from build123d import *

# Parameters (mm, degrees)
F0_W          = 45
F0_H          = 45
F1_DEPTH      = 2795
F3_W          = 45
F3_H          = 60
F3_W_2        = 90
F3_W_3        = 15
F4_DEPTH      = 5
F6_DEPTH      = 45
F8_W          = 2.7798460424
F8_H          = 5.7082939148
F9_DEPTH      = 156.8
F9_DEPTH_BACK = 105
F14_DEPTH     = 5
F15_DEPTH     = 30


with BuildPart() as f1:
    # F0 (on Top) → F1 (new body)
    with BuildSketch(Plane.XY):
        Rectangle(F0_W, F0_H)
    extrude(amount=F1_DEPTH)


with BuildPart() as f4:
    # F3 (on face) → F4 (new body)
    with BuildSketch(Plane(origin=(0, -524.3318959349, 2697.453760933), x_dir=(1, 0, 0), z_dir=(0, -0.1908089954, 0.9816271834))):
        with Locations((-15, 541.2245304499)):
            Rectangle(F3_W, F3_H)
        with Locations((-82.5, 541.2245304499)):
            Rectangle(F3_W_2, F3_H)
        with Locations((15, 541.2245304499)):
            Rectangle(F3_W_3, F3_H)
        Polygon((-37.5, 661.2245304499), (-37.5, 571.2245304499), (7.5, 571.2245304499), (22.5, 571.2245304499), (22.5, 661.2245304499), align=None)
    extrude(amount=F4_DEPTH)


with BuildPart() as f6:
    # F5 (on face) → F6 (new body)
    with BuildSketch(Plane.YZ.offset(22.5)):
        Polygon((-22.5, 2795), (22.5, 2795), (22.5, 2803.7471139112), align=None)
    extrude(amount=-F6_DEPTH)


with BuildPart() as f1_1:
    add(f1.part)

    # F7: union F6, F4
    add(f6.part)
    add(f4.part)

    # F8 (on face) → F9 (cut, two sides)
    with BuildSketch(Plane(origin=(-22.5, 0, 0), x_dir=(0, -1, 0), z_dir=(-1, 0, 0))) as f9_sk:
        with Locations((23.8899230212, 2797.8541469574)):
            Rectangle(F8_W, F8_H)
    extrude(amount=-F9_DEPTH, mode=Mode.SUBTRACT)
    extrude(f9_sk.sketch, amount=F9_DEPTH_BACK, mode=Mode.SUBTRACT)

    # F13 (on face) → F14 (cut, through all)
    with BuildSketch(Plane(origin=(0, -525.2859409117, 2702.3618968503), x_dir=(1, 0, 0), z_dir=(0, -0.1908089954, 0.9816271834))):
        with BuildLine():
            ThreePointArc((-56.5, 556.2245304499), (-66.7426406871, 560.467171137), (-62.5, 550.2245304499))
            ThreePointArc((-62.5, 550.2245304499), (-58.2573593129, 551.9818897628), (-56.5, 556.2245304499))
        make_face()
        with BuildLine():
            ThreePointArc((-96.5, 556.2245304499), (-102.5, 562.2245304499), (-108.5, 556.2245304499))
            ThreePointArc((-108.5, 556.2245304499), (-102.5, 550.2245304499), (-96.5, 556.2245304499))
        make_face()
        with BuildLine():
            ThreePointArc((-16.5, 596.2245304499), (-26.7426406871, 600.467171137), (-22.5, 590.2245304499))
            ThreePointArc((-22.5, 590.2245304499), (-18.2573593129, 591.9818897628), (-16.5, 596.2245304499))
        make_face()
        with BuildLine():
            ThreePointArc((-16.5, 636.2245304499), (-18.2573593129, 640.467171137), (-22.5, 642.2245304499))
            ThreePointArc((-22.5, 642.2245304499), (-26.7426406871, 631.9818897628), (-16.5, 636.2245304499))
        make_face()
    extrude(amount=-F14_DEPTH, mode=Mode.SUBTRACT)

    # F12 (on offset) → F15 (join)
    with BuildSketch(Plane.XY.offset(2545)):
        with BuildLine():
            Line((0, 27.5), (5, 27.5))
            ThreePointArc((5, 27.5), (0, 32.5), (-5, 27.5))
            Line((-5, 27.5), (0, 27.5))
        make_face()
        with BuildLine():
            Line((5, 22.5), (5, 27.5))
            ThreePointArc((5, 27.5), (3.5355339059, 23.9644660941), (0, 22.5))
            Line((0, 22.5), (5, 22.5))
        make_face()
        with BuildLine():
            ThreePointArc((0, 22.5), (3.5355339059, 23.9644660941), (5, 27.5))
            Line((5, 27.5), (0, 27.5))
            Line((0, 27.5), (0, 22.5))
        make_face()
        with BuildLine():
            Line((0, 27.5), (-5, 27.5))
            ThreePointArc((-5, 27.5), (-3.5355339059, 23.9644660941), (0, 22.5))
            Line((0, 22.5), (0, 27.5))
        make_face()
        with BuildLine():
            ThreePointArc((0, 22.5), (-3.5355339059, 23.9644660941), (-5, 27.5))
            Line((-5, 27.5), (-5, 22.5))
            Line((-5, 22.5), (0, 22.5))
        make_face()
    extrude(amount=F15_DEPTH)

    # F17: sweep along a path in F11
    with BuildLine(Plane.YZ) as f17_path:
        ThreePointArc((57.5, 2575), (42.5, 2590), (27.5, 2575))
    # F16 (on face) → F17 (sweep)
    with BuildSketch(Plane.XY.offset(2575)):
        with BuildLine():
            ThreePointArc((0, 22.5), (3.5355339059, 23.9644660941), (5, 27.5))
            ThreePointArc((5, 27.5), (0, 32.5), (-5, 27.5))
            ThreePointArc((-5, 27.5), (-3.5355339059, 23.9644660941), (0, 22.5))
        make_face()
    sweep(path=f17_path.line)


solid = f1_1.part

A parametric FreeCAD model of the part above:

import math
import FreeCAD as App
import Part
import Sketcher

V = App.Vector
Q = App.Units.Quantity

doc = App.newDocument("Part")
params = doc.addObject("Spreadsheet::Sheet", "Params")
for row, (alias, value) in enumerate([
    ("sketch1_width", "45 mm"),
    ("pad1_length", "2795 mm"),
    ("sketch2_width", "150 mm"),
    ("sketch2_width2", "60 mm"),
    ("pad2_length", "5 mm"),
    ("sketch3_width", "45 mm"),
    ("pad3_length", "45 mm"),
    ("sketch5_diameter", "12 mm"),
    ("sketch6_radius", "5 mm"),
    ("sketch6_height", "5 mm"),
    ("pad4_length", "30 mm"),
    ("sketch7_radius", "5 mm"),
    ("sketch8_radius", "15 mm"),
], start=1):
    params.set(f"A{row}", alias)
    params.set(f"B{row}", "=" + value)
    params.setAlias(f"B{row}", alias)

body = doc.addObject("PartDesign::Body", "Body")

sketch1 = body.newObject("Sketcher::SketchObject", "Sketch")
sketch1.AttachmentSupport = (doc.getObject("XY_Plane"), [""])
sketch1.MapMode = "FlatFace"
sketch1.addGeometry(Part.LineSegment(V(-22, 22, 0), V(-22, -22, 0)), False)
sketch1.addGeometry(Part.LineSegment(V(-22, -22, 0), V(22, -22, 0)), False)
sketch1.addGeometry(Part.LineSegment(V(22, -22, 0), V(22, 22, 0)), False)
sketch1.addGeometry(Part.LineSegment(V(22, 22, 0), V(-22, 22, 0)), False)
sketch1.addConstraint(Sketcher.Constraint("Coincident", 0, 2, 1, 1))
sketch1.addConstraint(Sketcher.Constraint("Coincident", 1, 2, 2, 1))
sketch1.addConstraint(Sketcher.Constraint("Coincident", 2, 2, 3, 1))
sketch1.addConstraint(Sketcher.Constraint("Coincident", 3, 2, 0, 1))
sketch1.addConstraint(Sketcher.Constraint("Vertical", 0))
sketch1.addConstraint(Sketcher.Constraint("Horizontal", 1))
sketch1.addConstraint(Sketcher.Constraint("Vertical", 2))
sketch1.addConstraint(Sketcher.Constraint("Horizontal", 3))
sketch1.addConstraint(Sketcher.Constraint("Symmetric", 0, 2, 2, 2, -1, 1))
sketch1.addConstraint(Sketcher.Constraint("Equal", 3, 0))
sketch1.addConstraint(Sketcher.Constraint("DistanceX", 1, 1, 1, 2, Q("45 mm")))
sketch1.setExpression("Constraints[10]", "Params.sketch1_width")
pad1 = body.newObject("PartDesign::Pad", "Pad")
pad1.Profile = sketch1
pad1.setExpression("Length", "Params.pad1_length")
body2 = doc.addObject("PartDesign::Body", "Body001")

sketch2 = body2.newObject("Sketcher::SketchObject", "Sketch001")
sketch2.Placement = App.Placement(V(0, -524.331896, 2697.453761), App.Rotation(V(1, 0, 0), V(0, 0.981627183, 0.190808995), V(0, -0.190808995, 0.981627183), "ZXY"))
sketch2.addGeometry(Part.LineSegment(V(-128, 571, 0), V(-128, 511, 0)), False)
sketch2.addGeometry(Part.LineSegment(V(-128, 511, 0), V(22, 511, 0)), False)
sketch2.addGeometry(Part.LineSegment(V(22, 511, 0), V(22, 661, 0)), False)
sketch2.addGeometry(Part.LineSegment(V(22, 661, 0), V(-38, 661, 0)), False)
sketch2.addGeometry(Part.LineSegment(V(-38, 661, 0), V(-38, 571, 0)), False)
sketch2.addGeometry(Part.LineSegment(V(-38, 571, 0), V(-128, 571, 0)), False)
sketch2.addConstraint(Sketcher.Constraint("Coincident", 0, 2, 1, 1))
sketch2.addConstraint(Sketcher.Constraint("Coincident", 1, 2, 2, 1))
sketch2.addConstraint(Sketcher.Constraint("Coincident", 2, 2, 3, 1))
sketch2.addConstraint(Sketcher.Constraint("Coincident", 3, 2, 4, 1))
sketch2.addConstraint(Sketcher.Constraint("Coincident", 4, 2, 5, 1))
sketch2.addConstraint(Sketcher.Constraint("Coincident", 5, 2, 0, 1))
sketch2.addConstraint(Sketcher.Constraint("Vertical", 0))
sketch2.addConstraint(Sketcher.Constraint("Horizontal", 1))
sketch2.addConstraint(Sketcher.Constraint("Vertical", 2))
sketch2.addConstraint(Sketcher.Constraint("Horizontal", 3))
sketch2.addConstraint(Sketcher.Constraint("Vertical", 4))
sketch2.addConstraint(Sketcher.Constraint("Horizontal", 5))
sketch2.addConstraint(Sketcher.Constraint("Equal", 3, 0))
sketch2.addConstraint(Sketcher.Constraint("Equal", 1, 2))
sketch2.addConstraint(Sketcher.Constraint("DistanceX", 1, 1, 1, 2, Q("150 mm")))
sketch2.addConstraint(Sketcher.Constraint("DistanceX", 3, 2, 3, 1, Q("60 mm")))
sketch2.addConstraint(Sketcher.Constraint("DistanceX", 0, 2, -1, 1, Q("127.5 mm")))
sketch2.addConstraint(Sketcher.Constraint("DistanceY", -1, 1, 0, 2, Q("511.22453 mm")))
sketch2.setExpression("Constraints[14]", "Params.sketch2_width")
sketch2.setExpression("Constraints[15]", "Params.sketch2_width2")
pad2 = body2.newObject("PartDesign::Pad", "Pad001")
pad2.Profile = sketch2
pad2.setExpression("Length", "Params.pad2_length")
body3 = doc.addObject("PartDesign::Body", "Body002")

sketch3 = body3.newObject("Sketcher::SketchObject", "Sketch002")
sketch3.AttachmentSupport = (doc.getObject("YZ_Plane002"), [""])
sketch3.MapMode = "FlatFace"
sketch3.AttachmentOffset = App.Placement(V(0, 0, 22.5), App.Rotation())
sketch3.addGeometry(Part.LineSegment(V(-22, 2795, 0), V(22, 2795, 0)), False)
sketch3.addGeometry(Part.LineSegment(V(22, 2795, 0), V(22, 2804, 0)), False)
sketch3.addGeometry(Part.LineSegment(V(22, 2804, 0), V(-22, 2795, 0)), False)
sketch3.addConstraint(Sketcher.Constraint("Coincident", 0, 2, 1, 1))
sketch3.addConstraint(Sketcher.Constraint("Coincident", 1, 2, 2, 1))
sketch3.addConstraint(Sketcher.Constraint("Coincident", 2, 2, 0, 1))
sketch3.addConstraint(Sketcher.Constraint("Horizontal", 0))
sketch3.addConstraint(Sketcher.Constraint("Vertical", 1))
sketch3.addConstraint(Sketcher.Constraint("DistanceX", 0, 1, 0, 2, Q("45 mm")))
sketch3.addConstraint(Sketcher.Constraint("Angle", 2, Q("-169 deg")))
sketch3.addConstraint(Sketcher.Constraint("DistanceY", -1, 1, 0, 2, Q("2795 mm")))
sketch3.addConstraint(Sketcher.Constraint("DistanceX", -1, 1, 0, 2, Q("22.5 mm")))
sketch3.setExpression("Constraints[5]", "Params.sketch3_width")
pad3 = body3.newObject("PartDesign::Pad", "Pad002")
pad3.Profile = sketch3
pad3.setExpression("Length", "Params.pad3_length")
pad3.Reversed = True
doc.recompute()

boolean = body.newObject("PartDesign::Boolean", "Boolean")
boolean.Type = "Fuse"
boolean.addObjects([body3])
doc.recompute()

boolean2 = body.newObject("PartDesign::Boolean", "Boolean001")
boolean2.Type = "Fuse"
boolean2.addObjects([body2])

sketch4 = body.newObject("Sketcher::SketchObject", "Sketch003")
sketch4.AttachmentSupport = (doc.getObject("YZ_Plane"), [""])
sketch4.MapMode = "FlatFace"
sketch4.AttachmentOffset = App.Placement(V(0, 0, -22.5), App.Rotation())
sketch4.addGeometry(Part.LineSegment(V(-22.5, 2800.7, 0), V(-22.5, 2795, 0)), False)
sketch4.addGeometry(Part.LineSegment(V(-22.5, 2795, 0), V(-25.3, 2795, 0)), False)
sketch4.addGeometry(Part.LineSegment(V(-25.3, 2795, 0), V(-25.3, 2800.7, 0)), False)
sketch4.addGeometry(Part.LineSegment(V(-25.3, 2800.7, 0), V(-22.5, 2800.7, 0)), False)
sketch4.addConstraint(Sketcher.Constraint("Coincident", 0, 2, 1, 1))
sketch4.addConstraint(Sketcher.Constraint("Coincident", 1, 2, 2, 1))
sketch4.addConstraint(Sketcher.Constraint("Coincident", 2, 2, 3, 1))
sketch4.addConstraint(Sketcher.Constraint("Coincident", 3, 2, 0, 1))
sketch4.addConstraint(Sketcher.Constraint("Vertical", 0))
sketch4.addConstraint(Sketcher.Constraint("Horizontal", 1))
sketch4.addConstraint(Sketcher.Constraint("Vertical", 2))
sketch4.addConstraint(Sketcher.Constraint("Horizontal", 3))
sketch4.addConstraint(Sketcher.Constraint("DistanceY", -1, 1, 0, 2, Q("2795 mm")))
sketch4.addConstraint(Sketcher.Constraint("DistanceX", 0, 2, -1, 1, Q("22.5 mm")))
sketch4.addConstraint(Sketcher.Constraint("DistanceX", 1, 2, 1, 1, Q("2.779846 mm")))
sketch4.addConstraint(Sketcher.Constraint("DistanceY", 0, 2, 0, 1, Q("5.708294 mm")))
pocket1 = body.newObject("PartDesign::Pocket", "Pocket")
pocket1.Profile = sketch4
pocket1.Type = "ThroughAll"
pocket1.Midplane = True

sketch5 = body.newObject("Sketcher::SketchObject", "Sketch004")
sketch5.Placement = App.Placement(V(0, -525.285941, 2702.361897), App.Rotation(V(1, 0, 0), V(0, 0.981627183, 0.190808995), V(0, -0.190808995, 0.981627183), "ZXY"))
sketch5.addGeometry(Part.ArcOfCircle(Part.Circle(V(-62, 556, 0), V(0, 0, 1), 6), math.radians(0), math.radians(270)), False)
sketch5.addGeometry(Part.ArcOfCircle(Part.Circle(V(-62, 556, 0), V(0, 0, 1), 6), math.radians(-90), math.radians(0)), False)
sketch5.addGeometry(Part.Circle(V(-102, 556, 0), V(0, 0, 1), 6), False)
sketch5.addGeometry(Part.ArcOfCircle(Part.Circle(V(-22, 596, 0), V(0, 0, 1), 6), math.radians(0), math.radians(270)), False)
sketch5.addGeometry(Part.ArcOfCircle(Part.Circle(V(-22, 596, 0), V(0, 0, 1), 6), math.radians(-90), math.radians(0)), False)
sketch5.addGeometry(Part.ArcOfCircle(Part.Circle(V(-22, 636, 0), V(0, 0, 1), 6), math.radians(0), math.radians(90)), False)
sketch5.addGeometry(Part.ArcOfCircle(Part.Circle(V(-22, 636, 0), V(0, 0, 1), 6), math.radians(90), math.radians(360)), False)
sketch5.addConstraint(Sketcher.Constraint("Tangent", 0, 1, 1, 2))
sketch5.addConstraint(Sketcher.Constraint("Coincident", 1, 1, 0, 2))
sketch5.addConstraint(Sketcher.Constraint("Tangent", 3, 1, 4, 2))
sketch5.addConstraint(Sketcher.Constraint("Coincident", 4, 1, 3, 2))
sketch5.addConstraint(Sketcher.Constraint("Tangent", 5, 1, 6, 2))
sketch5.addConstraint(Sketcher.Constraint("Coincident", 6, 1, 5, 2))
sketch5.addConstraint(Sketcher.Constraint("Equal", 1, 2))
sketch5.addConstraint(Sketcher.Constraint("Equal", 2, 3))
sketch5.addConstraint(Sketcher.Constraint("Equal", 4, 5))
sketch5.addConstraint(Sketcher.Constraint("Horizontal", 1, 3, 2, 3))
sketch5.addConstraint(Sketcher.Constraint("Horizontal", 2, 3, 0, 1))
sketch5.addConstraint(Sketcher.Constraint("Horizontal", 4, 3, 3, 1))
sketch5.addConstraint(Sketcher.Constraint("Horizontal", 6, 3, 5, 1))
sketch5.addConstraint(Sketcher.Constraint("Vertical", 4, 3, 5, 3))
sketch5.addConstraint(Sketcher.Constraint("Vertical", 0, 3, 1, 1))
sketch5.addConstraint(Sketcher.Constraint("Vertical", 6, 3, 4, 1))
sketch5.addConstraint(Sketcher.Constraint("Vertical", 4, 1, 6, 1))
sketch5.addConstraint(Sketcher.Constraint("Diameter", 2, Q("12 mm")))
sketch5.addConstraint(Sketcher.Constraint("DistanceX", 2, 3, 0, 3, Q("40 mm")))
sketch5.addConstraint(Sketcher.Constraint("DistanceX", 0, 3, 3, 3, Q("40 mm")))
sketch5.addConstraint(Sketcher.Constraint("DistanceY", 0, 3, 3, 3, Q("40 mm")))
sketch5.addConstraint(Sketcher.Constraint("DistanceY", 3, 3, 5, 3, Q("40 mm")))
sketch5.addConstraint(Sketcher.Constraint("DistanceX", 0, 3, -1, 1, Q("62.5 mm")))
sketch5.addConstraint(Sketcher.Constraint("DistanceY", -1, 1, 0, 3, Q("556.22453 mm")))
sketch5.setExpression("Constraints[17]", "Params.sketch5_diameter")
pocket2 = body.newObject("PartDesign::Pocket", "Pocket001")
pocket2.Profile = sketch5
pocket2.Type = "ThroughAll"

sketch6 = body.newObject("Sketcher::SketchObject", "Sketch005")
sketch6.AttachmentSupport = (doc.getObject("XY_Plane"), [""])
sketch6.MapMode = "FlatFace"
sketch6.AttachmentOffset = App.Placement(V(0, 0, 2545), App.Rotation())
sketch6.addGeometry(Part.ArcOfCircle(Part.Circle(V(0, 28, 0), V(0, 0, 1), 5), math.radians(0), math.radians(180)), False)
sketch6.addGeometry(Part.LineSegment(V(-5, 28, 0), V(-5, 22, 0)), False)
sketch6.addGeometry(Part.LineSegment(V(-5, 22, 0), V(5, 22, 0)), False)
sketch6.addGeometry(Part.LineSegment(V(5, 22, 0), V(5, 28, 0)), False)
sketch6.addConstraint(Sketcher.Constraint("Tangent", 0, 2, 1, 1))
sketch6.addConstraint(Sketcher.Constraint("Coincident", 1, 2, 2, 1))
sketch6.addConstraint(Sketcher.Constraint("Coincident", 2, 2, 3, 1))
sketch6.addConstraint(Sketcher.Constraint("Tangent", 3, 2, 0, 1))
sketch6.addConstraint(Sketcher.Constraint("Vertical", 1))
sketch6.addConstraint(Sketcher.Constraint("Horizontal", 2))
sketch6.addConstraint(Sketcher.Constraint("Vertical", 3))
sketch6.addConstraint(Sketcher.Constraint("PointOnObject", 0, 3, -2))
sketch6.addConstraint(Sketcher.Constraint("Radius", 0, Q("5 mm")))
sketch6.addConstraint(Sketcher.Constraint("DistanceY", 1, 2, 1, 1, Q("5 mm")))
sketch6.addConstraint(Sketcher.Constraint("DistanceY", -1, 1, 0, 3, Q("27.5 mm")))
sketch6.setExpression("Constraints[8]", "Params.sketch6_radius")
sketch6.setExpression("Constraints[9]", "Params.sketch6_height")
pad4 = body.newObject("PartDesign::Pad", "Pad003")
pad4.Profile = sketch6
pad4.setExpression("Length", "Params.pad4_length")

sketch7 = body.newObject("Sketcher::SketchObject", "Sketch006")
sketch7.AttachmentSupport = (doc.getObject("XY_Plane"), [""])
sketch7.MapMode = "FlatFace"
sketch7.AttachmentOffset = App.Placement(V(0, 0, 2575), App.Rotation())
sketch7.addGeometry(Part.ArcOfCircle(Part.Circle(V(0, 28, 0), V(0, 0, 1), 5), math.radians(-90), math.radians(0)), False)
sketch7.addGeometry(Part.ArcOfCircle(Part.Circle(V(0, 28, 0), V(0, 0, 1), 5), math.radians(0), math.radians(180)), False)
sketch7.addGeometry(Part.ArcOfCircle(Part.Circle(V(0, 28, 0), V(0, 0, 1), 5), math.radians(180), math.radians(270)), False)
sketch7.addConstraint(Sketcher.Constraint("Tangent", 0, 2, 1, 1))
sketch7.addConstraint(Sketcher.Constraint("Tangent", 1, 2, 2, 1))
sketch7.addConstraint(Sketcher.Constraint("Tangent", 2, 2, 0, 1))
sketch7.addConstraint(Sketcher.Constraint("Symmetric", 0, 2, 1, 2, -2))
sketch7.addConstraint(Sketcher.Constraint("PointOnObject", 2, 2, -2))
sketch7.addConstraint(Sketcher.Constraint("Horizontal", 2, 3, 0, 2))
sketch7.addConstraint(Sketcher.Constraint("Radius", 0, Q("5 mm")))
sketch7.addConstraint(Sketcher.Constraint("DistanceY", -1, 1, 0, 3, Q("27.5 mm")))
sketch7.setExpression("Constraints[6]", "Params.sketch7_radius")

sketch8 = body.newObject("Sketcher::SketchObject", "Sketch007")
sketch8.AttachmentSupport = (doc.getObject("YZ_Plane"), [""])
sketch8.MapMode = "FlatFace"
sketch8.addGeometry(Part.ArcOfCircle(Part.Circle(V(42, 2575, 0), V(0, 0, 1), 15), math.radians(0), math.radians(180)), False)
sketch8.addConstraint(Sketcher.Constraint("Radius", 0, Q("15 mm")))
sketch8.addConstraint(Sketcher.Constraint("DistanceY", -1, 1, 0, 3, Q("2575 mm")))
sketch8.addConstraint(Sketcher.Constraint("DistanceY", -1, 1, 0, 1, Q("2575 mm")))
sketch8.addConstraint(Sketcher.Constraint("DistanceY", -1, 1, 0, 2, Q("2575 mm")))
sketch8.addConstraint(Sketcher.Constraint("DistanceX", -1, 1, 0, 3, Q("42.5 mm")))
sketch8.setExpression("Constraints[0]", "Params.sketch8_radius")
doc.recompute()

additivepipe = body.newObject("PartDesign::AdditivePipe", "AdditivePipe")
additivepipe.Profile = sketch7
additivepipe.Spine = (sketch8, ["Edge1"])

doc.recompute()
